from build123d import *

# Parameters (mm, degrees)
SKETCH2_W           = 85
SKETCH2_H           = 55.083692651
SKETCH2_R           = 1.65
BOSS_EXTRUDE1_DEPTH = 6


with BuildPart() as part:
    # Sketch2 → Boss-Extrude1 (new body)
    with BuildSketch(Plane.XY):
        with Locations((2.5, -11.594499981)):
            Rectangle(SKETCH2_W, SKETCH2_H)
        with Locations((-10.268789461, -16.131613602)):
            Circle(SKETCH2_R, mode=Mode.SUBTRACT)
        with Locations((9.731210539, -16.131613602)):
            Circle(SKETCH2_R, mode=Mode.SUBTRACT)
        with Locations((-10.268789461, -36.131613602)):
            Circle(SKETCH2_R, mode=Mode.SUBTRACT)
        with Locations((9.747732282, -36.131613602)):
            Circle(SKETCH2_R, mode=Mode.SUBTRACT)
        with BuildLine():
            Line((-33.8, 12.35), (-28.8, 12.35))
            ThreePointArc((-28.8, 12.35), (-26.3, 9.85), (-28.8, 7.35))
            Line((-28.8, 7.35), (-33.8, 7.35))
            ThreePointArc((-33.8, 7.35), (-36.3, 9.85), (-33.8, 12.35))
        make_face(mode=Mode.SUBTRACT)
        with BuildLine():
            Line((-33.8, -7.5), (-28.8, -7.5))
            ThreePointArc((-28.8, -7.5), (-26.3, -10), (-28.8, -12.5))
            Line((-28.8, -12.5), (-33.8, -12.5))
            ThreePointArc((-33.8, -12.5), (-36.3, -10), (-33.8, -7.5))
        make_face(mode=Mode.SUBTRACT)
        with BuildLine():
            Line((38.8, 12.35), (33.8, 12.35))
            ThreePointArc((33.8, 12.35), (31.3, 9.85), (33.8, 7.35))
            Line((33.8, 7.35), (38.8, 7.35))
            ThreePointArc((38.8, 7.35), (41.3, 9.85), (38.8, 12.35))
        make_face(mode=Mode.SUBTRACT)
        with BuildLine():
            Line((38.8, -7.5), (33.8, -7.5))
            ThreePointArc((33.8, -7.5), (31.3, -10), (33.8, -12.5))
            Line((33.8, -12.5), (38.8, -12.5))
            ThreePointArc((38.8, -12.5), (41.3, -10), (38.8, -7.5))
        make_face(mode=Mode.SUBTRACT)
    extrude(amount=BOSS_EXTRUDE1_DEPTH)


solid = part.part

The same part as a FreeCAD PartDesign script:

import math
import FreeCAD as App
import Part
import Sketcher
from FreeCAD import Vector

doc = App.newDocument("Part")
params = doc.addObject("Spreadsheet::Sheet", "Params")
for row, (alias, value) in enumerate([
    ("sketch1_diameter", "3.3 mm"),
    ("sketch1_radius", "2.5 mm"),
    ("sketch1_width", "85 mm"),
    ("sketch1_width2", "5 mm"),
    ("pad1_length", "6 mm"),
], start=1):
    params.set(f"A{row}", alias)
    params.set(f"B{row}", "=" + value)
    params.setAlias(f"B{row}", alias)

body = doc.addObject("PartDesign::Body", "Body")

# Sketch on XY plane
sketch1 = doc.addObject("Sketcher::SketchObject", "Sketch")
body.addObject(sketch1)
sketch1.AttachmentSupport = (doc.XY_Plane, [""])
sketch1.MapMode = "FlatFace"
sketch1.addGeometry([
    Part.LineSegment(Vector(-40, 15.9, 0), Vector(-40, -39.1, 0)),  # 0
    Part.LineSegment(Vector(-40, -39.1, 0), Vector(45, -39.1, 0)),  # 1
    Part.LineSegment(Vector(45, -39.1, 0), Vector(45, 15.9, 0)),  # 2
    Part.LineSegment(Vector(45, 15.9, 0), Vector(-40, 15.9, 0)),  # 3
    Part.Circle(Vector(-10.3, -36.1, 0), Vector(0, 0, 1), 1.6),  # 4
    Part.Circle(Vector(-10.3, -16.1, 0), Vector(0, 0, 1), 1.6),  # 5
    Part.Circle(Vector(9.7, -36.1, 0), Vector(0, 0, 1), 1.6),  # 6
    Part.Circle(Vector(9.7, -16.1, 0), Vector(0, 0, 1), 1.6),  # 7
    Part.ArcOfCircle(Part.Circle(Vector(-33.8, -10, 0), Vector(0, 0, 1), 2.5), math.radians(90), math.radians(270)),  # 8
    Part.LineSegment(Vector(-33.8, -7.5, 0), Vector(-28.8, -7.5, 0)),  # 9
    Part.ArcOfCircle(Part.Circle(Vector(-28.8, -10, 0), Vector(0, 0, 1), 2.5), math.radians(-90), math.radians(90)),  # 10
    Part.LineSegment(Vector(-28.8, -12.5, 0), Vector(-33.8, -12.5, 0)),  # 11
    Part.ArcOfCircle(Part.Circle(Vector(-33.8, 9.8, 0), Vector(0, 0, 1), 2.5), math.radians(90), math.radians(270)),  # 12
    Part.LineSegment(Vector(-33.8, 12.3, 0), Vector(-28.8, 12.3, 0)),  # 13
    Part.ArcOfCircle(Part.Circle(Vector(-28.8, 9.8, 0), Vector(0, 0, 1), 2.5), math.radians(-90), math.radians(90)),  # 14
    Part.LineSegment(Vector(-28.8, 7.3, 0), Vector(-33.8, 7.3, 0)),  # 15
    Part.LineSegment(Vector(33.8, -7.5, 0), Vector(38.8, -7.5, 0)),  # 16
    Part.ArcOfCircle(Part.Circle(Vector(38.8, -10, 0), Vector(0, 0, 1), 2.5), math.radians(-90), math.radians(90)),  # 17
    Part.LineSegment(Vector(38.8, -12.5, 0), Vector(33.8, -12.5, 0)),  # 18
    Part.ArcOfCircle(Part.Circle(Vector(33.8, -10, 0), Vector(0, 0, 1), 2.5), math.radians(90), math.radians(270)),  # 19
    Part.LineSegment(Vector(33.8, 12.3, 0), Vector(38.8, 12.3, 0)),  # 20
    Part.ArcOfCircle(Part.Circle(Vector(38.8, 9.8, 0), Vector(0, 0, 1), 2.5), math.radians(-90), math.radians(90)),  # 21
    Part.LineSegment(Vector(38.8, 7.3, 0), Vector(33.8, 7.3, 0)),  # 22
    Part.ArcOfCircle(Part.Circle(Vector(33.8, 9.8, 0), Vector(0, 0, 1), 2.5), math.radians(90), math.radians(270)),  # 23
], False)
sketch1.addConstraint([
    Sketcher.Constraint("Coincident", 0, 2, 1, 1),
    Sketcher.Constraint("Coincident", 1, 2, 2, 1),
    Sketcher.Constraint("Coincident", 2, 2, 3, 1),
    Sketcher.Constraint("Coincident", 3, 2, 0, 1),
    Sketcher.Constraint("Tangent", 8, 1, 9, 1),
    Sketcher.Constraint("Tangent", 9, 2, 10, 2),
    Sketcher.Constraint("Tangent", 10, 1, 11, 1),
    Sketcher.Constraint("Tangent", 11, 2, 8, 2),
    Sketcher.Constraint("Tangent", 12, 1, 13, 1),
    Sketcher.Constraint("Tangent", 13, 2, 14, 2),
    Sketcher.Constraint("Tangent", 14, 1, 15, 1),
    Sketcher.Constraint("Tangent", 15, 2, 12, 2),
    Sketcher.Constraint("Tangent", 16, 2, 17, 2),
    Sketcher.Constraint("Tangent", 17, 1, 18, 1),
    Sketcher.Constraint("Tangent", 18, 2, 19, 2),
    Sketcher.Constraint("Tangent", 19, 1, 16, 1),
    Sketcher.Constraint("Tangent", 20, 2, 21, 2),
    Sketcher.Constraint("Tangent", 21, 1, 22, 1),
    Sketcher.Constraint("Tangent", 22, 2, 23, 2),
    Sketcher.Constraint("Tangent", 23, 1, 20, 1),
    Sketcher.Constraint("Vertical", 0),
    Sketcher.Constraint("Horizontal", 1),
    Sketcher.Constraint("Vertical", 2),
    Sketcher.Constraint("Horizontal", 3),
    Sketcher.Constraint("Horizontal", 9),
    Sketcher.Constraint("Horizontal", 11),
    Sketcher.Constraint("Horizontal", 13),
    Sketcher.Constraint("Horizontal", 15),
    Sketcher.Constraint("Horizontal", 16),
    Sketcher.Constraint("Horizontal", 18),
    Sketcher.Constraint("Horizontal", 20),
    Sketcher.Constraint("Horizontal", 22),
    Sketcher.Constraint("Equal", 4, 5),
    Sketcher.Constraint("Equal", 5, 6),
    Sketcher.Constraint("Equal", 6, 7),
    Sketcher.Constraint("Equal", 10, 12),
    Sketcher.Constraint("Equal", 14, 17),
    Sketcher.Constraint("Equal", 19, 21),
    Sketcher.Constraint("Symmetric", 8, 3, 19, 3, -2),
    Sketcher.Constraint("Symmetric", 12, 3, 23, 3, -2),
    Sketcher.Constraint("Horizontal", 4, 3, 6, 3),
    Sketcher.Constraint("Horizontal", 5, 3, 7, 3),
    Sketcher.Constraint("Vertical", 4, 3, 5, 3),
    Sketcher.Constraint("Vertical", 8, 3, 12, 3),
    Sketcher.Constraint("Vertical", 10, 3, 14, 3),
    Sketcher.Constraint("Vertical", 17, 3, 21, 3),
    Sketcher.Constraint("Equal", 15, 16),
    Sketcher.Constraint("Diameter", 4, 3.3),
    Sketcher.Constraint("Radius", 8, 2.5),
    Sketcher.Constraint("DistanceX", 1, 1, 1, 2, 85.0),
    Sketcher.Constraint("DistanceX", 9, 1, 9, 2, 5.0),
    Sketcher.Constraint("DistanceY", 8, 3, -1, 1, 10.0),
    Sketcher.Constraint("DistanceX", 0, 2, -1, 1, 40.0),
    Sketcher.Constraint("DistanceY", 4, 3, 5, 3, 20.0),
    Sketcher.Constraint("DistanceX", 5, 3, 7, 3, 20.0),
    Sketcher.Constraint("DistanceX", 8, 3, -1, 1, 33.8),
    Sketcher.Constraint("DistanceY", -1, 1, 12, 3, 9.85),
    Sketcher.Constraint("DistanceY", 0, 2, 0, 1, 55.083693),
    Sketcher.Constraint("DistanceX", 4, 3, -1, 1, 10.268789),
    Sketcher.Constraint("DistanceX", 4, 3, 6, 3, 20.016522),
    Sketcher.Constraint("DistanceY", 7, 3, 2, 2, 32.07896),
    Sketcher.Constraint("DistanceY", 4, 3, -1, 1, 36.131614),
])
sketch1.setExpression("Constraints[47]", "Params.sketch1_diameter")
sketch1.setExpression("Constraints[48]", "Params.sketch1_radius")
sketch1.setExpression("Constraints[49]", "Params.sketch1_width")
sketch1.setExpression("Constraints[50]", "Params.sketch1_width2")
pad1 = doc.addObject("PartDesign::Pad", "Pad")
body.addObject(pad1)
pad1.Profile = sketch1
pad1.setExpression("Length", "Params.pad1_length")

doc.recompute()
